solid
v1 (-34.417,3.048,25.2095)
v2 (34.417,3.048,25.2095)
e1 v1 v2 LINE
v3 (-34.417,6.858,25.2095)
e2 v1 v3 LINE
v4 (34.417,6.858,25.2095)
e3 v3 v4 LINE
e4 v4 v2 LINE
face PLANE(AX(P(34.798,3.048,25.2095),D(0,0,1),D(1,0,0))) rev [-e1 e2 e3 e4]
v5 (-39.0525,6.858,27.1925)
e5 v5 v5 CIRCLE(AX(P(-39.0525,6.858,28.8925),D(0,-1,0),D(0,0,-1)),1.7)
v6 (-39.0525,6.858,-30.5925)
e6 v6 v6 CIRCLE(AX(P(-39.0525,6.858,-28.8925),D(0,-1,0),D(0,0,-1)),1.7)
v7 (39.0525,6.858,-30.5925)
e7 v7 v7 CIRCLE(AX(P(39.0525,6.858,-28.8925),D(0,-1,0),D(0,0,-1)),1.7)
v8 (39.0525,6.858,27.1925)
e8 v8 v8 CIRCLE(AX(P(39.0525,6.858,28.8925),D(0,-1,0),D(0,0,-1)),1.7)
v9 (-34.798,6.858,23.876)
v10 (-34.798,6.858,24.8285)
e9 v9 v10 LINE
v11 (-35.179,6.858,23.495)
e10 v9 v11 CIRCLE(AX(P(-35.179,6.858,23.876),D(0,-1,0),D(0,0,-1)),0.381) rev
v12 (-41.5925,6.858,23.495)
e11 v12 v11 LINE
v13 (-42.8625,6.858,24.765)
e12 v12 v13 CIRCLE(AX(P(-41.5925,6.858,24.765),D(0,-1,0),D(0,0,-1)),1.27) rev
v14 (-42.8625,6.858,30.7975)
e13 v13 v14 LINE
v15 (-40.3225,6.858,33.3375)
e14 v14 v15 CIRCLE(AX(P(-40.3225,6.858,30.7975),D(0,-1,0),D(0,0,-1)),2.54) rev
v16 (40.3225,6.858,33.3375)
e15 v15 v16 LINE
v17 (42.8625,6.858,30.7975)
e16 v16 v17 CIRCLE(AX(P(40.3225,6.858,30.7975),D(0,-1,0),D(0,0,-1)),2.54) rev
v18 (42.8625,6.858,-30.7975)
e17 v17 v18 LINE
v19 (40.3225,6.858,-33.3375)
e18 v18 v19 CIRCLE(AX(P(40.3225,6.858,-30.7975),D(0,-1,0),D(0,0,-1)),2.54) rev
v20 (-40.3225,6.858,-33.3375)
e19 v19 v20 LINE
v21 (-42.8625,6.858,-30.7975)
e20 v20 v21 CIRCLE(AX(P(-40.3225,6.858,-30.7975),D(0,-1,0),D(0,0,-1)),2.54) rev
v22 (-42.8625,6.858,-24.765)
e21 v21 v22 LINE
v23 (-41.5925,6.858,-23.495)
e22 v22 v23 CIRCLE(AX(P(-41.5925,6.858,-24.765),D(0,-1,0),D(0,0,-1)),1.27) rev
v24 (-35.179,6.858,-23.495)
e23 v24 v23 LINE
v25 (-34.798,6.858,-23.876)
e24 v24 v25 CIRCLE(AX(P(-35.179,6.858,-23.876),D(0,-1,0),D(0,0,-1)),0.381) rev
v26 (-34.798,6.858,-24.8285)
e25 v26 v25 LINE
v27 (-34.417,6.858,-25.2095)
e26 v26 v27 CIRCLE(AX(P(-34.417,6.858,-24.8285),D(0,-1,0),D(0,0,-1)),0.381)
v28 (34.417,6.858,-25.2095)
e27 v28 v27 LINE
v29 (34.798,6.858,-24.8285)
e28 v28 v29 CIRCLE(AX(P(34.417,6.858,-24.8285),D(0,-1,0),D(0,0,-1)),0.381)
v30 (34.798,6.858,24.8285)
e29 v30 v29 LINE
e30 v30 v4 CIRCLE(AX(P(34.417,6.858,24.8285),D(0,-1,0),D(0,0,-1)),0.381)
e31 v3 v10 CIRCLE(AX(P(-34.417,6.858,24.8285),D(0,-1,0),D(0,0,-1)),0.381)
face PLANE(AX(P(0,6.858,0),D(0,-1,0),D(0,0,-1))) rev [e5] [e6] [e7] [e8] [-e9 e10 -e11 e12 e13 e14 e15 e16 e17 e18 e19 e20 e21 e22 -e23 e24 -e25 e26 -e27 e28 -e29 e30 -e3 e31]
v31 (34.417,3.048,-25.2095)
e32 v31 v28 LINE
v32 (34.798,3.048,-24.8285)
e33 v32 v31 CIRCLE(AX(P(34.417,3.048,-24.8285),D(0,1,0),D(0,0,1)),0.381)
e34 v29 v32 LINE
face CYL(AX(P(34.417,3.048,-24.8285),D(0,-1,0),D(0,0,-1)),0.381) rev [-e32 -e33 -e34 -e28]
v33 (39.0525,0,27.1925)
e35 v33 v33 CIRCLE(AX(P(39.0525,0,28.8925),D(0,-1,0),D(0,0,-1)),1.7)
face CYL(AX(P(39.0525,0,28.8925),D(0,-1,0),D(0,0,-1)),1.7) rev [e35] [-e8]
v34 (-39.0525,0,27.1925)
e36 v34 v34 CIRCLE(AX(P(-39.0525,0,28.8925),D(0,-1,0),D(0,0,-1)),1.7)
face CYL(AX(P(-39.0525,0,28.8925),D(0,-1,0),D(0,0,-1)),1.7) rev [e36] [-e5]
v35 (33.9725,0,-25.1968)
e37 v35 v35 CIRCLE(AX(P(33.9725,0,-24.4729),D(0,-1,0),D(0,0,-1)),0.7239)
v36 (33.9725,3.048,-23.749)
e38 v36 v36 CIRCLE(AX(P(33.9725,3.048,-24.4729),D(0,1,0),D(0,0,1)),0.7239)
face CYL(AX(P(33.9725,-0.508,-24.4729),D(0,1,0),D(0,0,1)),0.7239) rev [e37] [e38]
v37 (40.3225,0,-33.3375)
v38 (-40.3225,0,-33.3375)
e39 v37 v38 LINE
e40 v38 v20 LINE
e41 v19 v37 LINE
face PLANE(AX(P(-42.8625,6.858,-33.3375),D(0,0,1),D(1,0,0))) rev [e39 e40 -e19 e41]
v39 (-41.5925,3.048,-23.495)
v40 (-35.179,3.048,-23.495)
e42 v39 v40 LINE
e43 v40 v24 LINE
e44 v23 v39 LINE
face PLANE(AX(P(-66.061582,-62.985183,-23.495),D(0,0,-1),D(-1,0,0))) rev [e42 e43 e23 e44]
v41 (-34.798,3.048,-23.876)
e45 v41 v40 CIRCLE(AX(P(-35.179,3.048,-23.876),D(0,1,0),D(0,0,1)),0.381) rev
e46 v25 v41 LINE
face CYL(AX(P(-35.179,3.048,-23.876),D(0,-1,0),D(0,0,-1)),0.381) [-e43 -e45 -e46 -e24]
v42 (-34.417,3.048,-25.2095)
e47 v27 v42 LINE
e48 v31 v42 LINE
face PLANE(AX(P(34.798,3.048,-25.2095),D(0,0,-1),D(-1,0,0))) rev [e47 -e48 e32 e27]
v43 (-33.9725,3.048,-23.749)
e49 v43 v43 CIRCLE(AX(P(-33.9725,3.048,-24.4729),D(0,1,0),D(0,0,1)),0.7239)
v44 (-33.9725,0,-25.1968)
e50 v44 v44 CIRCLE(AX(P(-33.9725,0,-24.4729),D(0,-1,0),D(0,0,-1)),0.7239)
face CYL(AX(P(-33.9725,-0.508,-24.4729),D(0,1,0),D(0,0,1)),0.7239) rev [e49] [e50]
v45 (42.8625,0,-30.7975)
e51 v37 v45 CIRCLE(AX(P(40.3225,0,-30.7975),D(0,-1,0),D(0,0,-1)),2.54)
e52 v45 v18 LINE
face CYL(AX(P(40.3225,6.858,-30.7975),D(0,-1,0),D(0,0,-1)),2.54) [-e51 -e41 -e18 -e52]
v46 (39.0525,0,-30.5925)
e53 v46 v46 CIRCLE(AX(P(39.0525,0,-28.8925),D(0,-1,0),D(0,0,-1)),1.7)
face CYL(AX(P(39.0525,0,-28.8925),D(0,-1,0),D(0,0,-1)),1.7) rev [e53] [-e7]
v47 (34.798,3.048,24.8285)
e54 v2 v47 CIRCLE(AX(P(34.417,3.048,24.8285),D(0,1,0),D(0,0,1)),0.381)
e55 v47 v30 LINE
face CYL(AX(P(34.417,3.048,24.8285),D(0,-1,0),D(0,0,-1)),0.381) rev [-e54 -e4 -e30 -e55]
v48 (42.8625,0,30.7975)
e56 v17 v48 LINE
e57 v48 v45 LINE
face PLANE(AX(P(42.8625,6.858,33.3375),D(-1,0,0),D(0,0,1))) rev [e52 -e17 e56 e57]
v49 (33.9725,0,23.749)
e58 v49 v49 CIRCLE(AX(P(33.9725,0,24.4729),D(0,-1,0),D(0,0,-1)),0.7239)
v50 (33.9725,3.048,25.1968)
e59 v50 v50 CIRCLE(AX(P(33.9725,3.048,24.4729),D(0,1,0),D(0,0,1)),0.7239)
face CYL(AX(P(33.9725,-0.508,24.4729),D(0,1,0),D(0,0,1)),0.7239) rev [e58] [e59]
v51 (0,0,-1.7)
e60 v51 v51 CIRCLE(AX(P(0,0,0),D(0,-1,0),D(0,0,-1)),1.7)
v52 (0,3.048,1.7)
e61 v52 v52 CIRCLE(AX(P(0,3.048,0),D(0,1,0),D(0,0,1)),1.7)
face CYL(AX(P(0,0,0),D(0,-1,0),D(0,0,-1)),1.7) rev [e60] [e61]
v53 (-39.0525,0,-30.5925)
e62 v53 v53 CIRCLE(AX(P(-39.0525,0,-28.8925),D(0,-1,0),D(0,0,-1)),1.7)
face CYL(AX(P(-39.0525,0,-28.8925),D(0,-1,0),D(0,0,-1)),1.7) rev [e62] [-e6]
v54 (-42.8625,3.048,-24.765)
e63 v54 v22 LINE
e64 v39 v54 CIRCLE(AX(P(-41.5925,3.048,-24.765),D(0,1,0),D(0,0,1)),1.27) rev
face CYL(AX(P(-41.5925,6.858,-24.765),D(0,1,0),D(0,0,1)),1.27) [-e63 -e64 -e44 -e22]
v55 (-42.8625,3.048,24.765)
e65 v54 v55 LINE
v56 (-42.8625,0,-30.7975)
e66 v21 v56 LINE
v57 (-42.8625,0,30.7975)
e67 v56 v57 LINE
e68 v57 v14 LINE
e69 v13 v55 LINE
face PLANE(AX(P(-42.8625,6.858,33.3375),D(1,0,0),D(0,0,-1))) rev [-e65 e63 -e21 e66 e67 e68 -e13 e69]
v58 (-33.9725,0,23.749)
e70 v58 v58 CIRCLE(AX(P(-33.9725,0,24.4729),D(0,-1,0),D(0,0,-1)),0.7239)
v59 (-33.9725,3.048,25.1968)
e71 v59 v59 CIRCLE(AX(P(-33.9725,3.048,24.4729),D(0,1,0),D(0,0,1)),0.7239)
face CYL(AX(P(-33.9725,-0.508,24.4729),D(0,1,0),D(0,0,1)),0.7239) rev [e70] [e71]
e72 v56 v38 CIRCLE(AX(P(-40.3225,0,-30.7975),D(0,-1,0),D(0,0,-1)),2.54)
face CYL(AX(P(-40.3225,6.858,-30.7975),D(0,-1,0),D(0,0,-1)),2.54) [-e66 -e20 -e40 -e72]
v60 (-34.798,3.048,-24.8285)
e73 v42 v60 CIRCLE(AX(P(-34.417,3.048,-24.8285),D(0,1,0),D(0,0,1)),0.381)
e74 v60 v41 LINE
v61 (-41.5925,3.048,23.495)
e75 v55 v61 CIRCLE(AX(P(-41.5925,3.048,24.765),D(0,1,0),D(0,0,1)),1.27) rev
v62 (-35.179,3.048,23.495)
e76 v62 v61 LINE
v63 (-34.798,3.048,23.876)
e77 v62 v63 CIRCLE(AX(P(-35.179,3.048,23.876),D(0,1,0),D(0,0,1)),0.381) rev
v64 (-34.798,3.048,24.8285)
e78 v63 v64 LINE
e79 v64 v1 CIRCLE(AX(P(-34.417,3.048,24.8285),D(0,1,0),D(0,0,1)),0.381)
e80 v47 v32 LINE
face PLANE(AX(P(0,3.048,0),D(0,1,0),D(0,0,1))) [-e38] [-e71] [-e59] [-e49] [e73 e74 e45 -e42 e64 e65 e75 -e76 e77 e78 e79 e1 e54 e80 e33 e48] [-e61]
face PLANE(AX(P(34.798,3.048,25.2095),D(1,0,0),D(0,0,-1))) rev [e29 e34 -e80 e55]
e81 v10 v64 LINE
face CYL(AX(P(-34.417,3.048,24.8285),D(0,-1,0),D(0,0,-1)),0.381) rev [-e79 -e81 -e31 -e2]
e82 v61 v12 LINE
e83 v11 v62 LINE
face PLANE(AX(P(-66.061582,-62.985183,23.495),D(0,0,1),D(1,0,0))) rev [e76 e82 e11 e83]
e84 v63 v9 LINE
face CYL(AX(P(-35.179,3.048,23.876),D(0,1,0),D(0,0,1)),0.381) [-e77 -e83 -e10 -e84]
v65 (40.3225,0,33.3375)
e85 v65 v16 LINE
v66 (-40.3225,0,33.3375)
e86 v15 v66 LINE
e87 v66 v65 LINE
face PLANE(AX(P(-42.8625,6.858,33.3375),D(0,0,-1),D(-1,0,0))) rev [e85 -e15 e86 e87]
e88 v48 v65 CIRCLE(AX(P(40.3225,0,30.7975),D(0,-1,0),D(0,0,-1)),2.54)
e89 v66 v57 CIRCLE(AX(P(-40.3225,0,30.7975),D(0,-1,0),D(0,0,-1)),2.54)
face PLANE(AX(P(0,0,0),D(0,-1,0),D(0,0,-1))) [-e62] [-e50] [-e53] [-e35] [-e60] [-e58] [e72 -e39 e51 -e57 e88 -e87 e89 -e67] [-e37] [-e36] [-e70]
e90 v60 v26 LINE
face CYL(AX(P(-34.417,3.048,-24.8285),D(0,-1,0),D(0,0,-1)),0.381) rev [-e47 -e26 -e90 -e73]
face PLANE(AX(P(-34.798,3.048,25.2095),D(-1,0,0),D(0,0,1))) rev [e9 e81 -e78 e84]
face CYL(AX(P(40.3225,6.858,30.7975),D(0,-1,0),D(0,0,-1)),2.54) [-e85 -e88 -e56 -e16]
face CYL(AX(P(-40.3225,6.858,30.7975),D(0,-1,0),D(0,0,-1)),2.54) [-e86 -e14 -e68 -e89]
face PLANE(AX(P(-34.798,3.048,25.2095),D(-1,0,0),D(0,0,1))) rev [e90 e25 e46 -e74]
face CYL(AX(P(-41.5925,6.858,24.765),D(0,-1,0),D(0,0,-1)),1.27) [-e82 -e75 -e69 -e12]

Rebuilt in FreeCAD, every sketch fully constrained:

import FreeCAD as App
import Part
import Sketcher

V = App.Vector
Q = App.Units.Quantity


def edges_at(feature, points):
    """Names of the edges that pass closest to the given points."""
    edges = feature.Shape.Edges
    near = lambda p: min(range(len(edges)), key=lambda i: edges[i].distToShape(Part.Vertex(*p))[0])
    return sorted({f"Edge{near(p) + 1}" for p in points})


def add_polygon(sketch, points):
    """Adds a closed chain of lines whose ends are joined by coincident constraints."""
    first, n = sketch.GeometryCount, len(points)
    for a, b in zip(points, points[1:] + points[:1]):
        sketch.addGeometry(Part.LineSegment(App.Vector(*a, 0), App.Vector(*b, 0)), False)
    for i in range(n):
        sketch.addConstraint(Sketcher.Constraint("Coincident", first + i, 2, first + (i + 1) % n, 1))

doc = App.newDocument("Part")
params = doc.addObject("Spreadsheet::Sheet", "Params")
for row, (alias, value) in enumerate([
    ("sketch1_width", "3.375 in"),
    ("sketch1_height", "2.625 in"),
    ("pad1_length", "0.27 in"),
    ("fillet_radius", "0.1 in"),
    ("sketch2_width", "2.74 in"),
    ("sketch2_height", "1.985 in"),
    ("pocket1_length", "0.15 in"),
    ("fillet2_radius", "0.015 in"),
    ("sketch3_diameter", "0.057 in"),
    ("pocket2_length", "0.14 in"),
    ("hole_diameter", "3.4 mm"),
    ("hole_depth", "0.27 in"),
    ("sketch5_height", "1.85 in"),
    ("pocket3_length", "0.15 in"),
    ("fillet3_radius", "0.015 in"),
    ("fillet4_radius", "0.05 in"),
], start=1):
    params.set(f"A{row}", alias)
    params.set(f"B{row}", "=" + value)
    params.setAlias(f"B{row}", alias)

body = doc.addObject("PartDesign::Body", "Body")

sketch1 = body.newObject("Sketcher::SketchObject", "Sketch")
sketch1.AttachmentSupport = (doc.getObject("XZ_Plane"), [""])
sketch1.MapMode = "FlatFace"
add_polygon(sketch1, [(-43, -33), (-43, 33), (43, 33), (43, -33)])
sketch1.addConstraint(Sketcher.Constraint("Vertical", 0))
sketch1.addConstraint(Sketcher.Constraint("Horizontal", 1))
sketch1.addConstraint(Sketcher.Constraint("Vertical", 2))
sketch1.addConstraint(Sketcher.Constraint("Horizontal", 3))
sketch1.addConstraint(Sketcher.Constraint("Symmetric", 0, 2, 2, 2, -1, 1))
sketch1.addConstraint(Sketcher.Constraint("DistanceX", 1, 1, 1, 2, Q("3.375 in")))
sketch1.addConstraint(Sketcher.Constraint("DistanceY", 0, 1, 0, 2, Q("2.625 in")))
sketch1.setExpression("Constraints[9]", "Params.sketch1_width")
sketch1.setExpression("Constraints[10]", "Params.sketch1_height")
pad1 = body.newObject("PartDesign::Pad", "Pad")
pad1.Profile = sketch1
pad1.setExpression("Length", "Params.pad1_length")
pad1.Reversed = True
doc.recompute()

fillet = body.newObject("PartDesign::Fillet", "Fillet")
fillet.Base = (pad1, edges_at(pad1, [
    (42.862, 3.429, 33.337),
    (-42.862, 3.429, 33.337),
    (-42.862, 3.429, -33.337),
    (42.862, 3.429, -33.337),
]))
fillet.setExpression("Radius", "Params.fillet_radius")

sketch2 = body.newObject("Sketcher::SketchObject", "Sketch001")
sketch2.AttachmentSupport = (doc.getObject("XZ_Plane"), [""])
sketch2.MapMode = "FlatFace"
sketch2.AttachmentOffset = App.Placement(V(0, 0, -0.27 * 25.4), App.Rotation())
add_polygon(sketch2, [(-35, -25), (-35, 25), (35, 25), (35, -25)])
sketch2.addConstraint(Sketcher.Constraint("Vertical", 0))
sketch2.addConstraint(Sketcher.Constraint("Horizontal", 1))
sketch2.addConstraint(Sketcher.Constraint("Vertical", 2))
sketch2.addConstraint(Sketcher.Constraint("Horizontal", 3))
sketch2.addConstraint(Sketcher.Constraint("Symmetric", 0, 2, 2, 2, -1, 1))
sketch2.addConstraint(Sketcher.Constraint("DistanceX", 1, 1, 1, 2, Q("2.74 in")))
sketch2.addConstraint(Sketcher.Constraint("DistanceY", 0, 1, 0, 2, Q("1.985 in")))
sketch2.setExpression("Constraints[9]", "Params.sketch2_width")
sketch2.setExpression("Constraints[10]", "Params.sketch2_height")
pocket1 = body.newObject("PartDesign::Pocket", "Pocket")
pocket1.Profile = sketch2
pocket1.setExpression("Length", "Params.pocket1_length")
pocket1.Reversed = True
doc.recompute()

fillet2 = body.newObject("PartDesign::Fillet", "Fillet001")
fillet2.Base = (pocket1, edges_at(pocket1, [
    (-34.798, 4.953, 25.209),
    (-34.798, 4.953, -25.209),
    (34.798, 4.953, -25.209),
    (34.798, 4.953, 25.209),
]))
fillet2.setExpression("Radius", "Params.fillet2_radius")

sketch3 = body.newObject("Sketcher::SketchObject", "Sketch002")
sketch3.AttachmentSupport = (doc.getObject("XZ_Plane"), [""])
sketch3.MapMode = "FlatFace"
sketch3.AttachmentOffset = App.Placement(V(0, 0, -0.12 * 25.4), App.Rotation())
sketch3.addGeometry(Part.Circle(V(-34, -24.5, 0), V(0, 0, 1), 0.7), False)
sketch3.addGeometry(Part.Circle(V(34, -24.5, 0), V(0, 0, 1), 0.7), False)
sketch3.addGeometry(Part.Circle(V(34, 24.5, 0), V(0, 0, 1), 0.7), False)
sketch3.addGeometry(Part.Circle(V(-34, 24.5, 0), V(0, 0, 1), 0.7), False)
sketch3.addConstraint(Sketcher.Constraint("Equal", 0, 1))
sketch3.addConstraint(Sketcher.Constraint("Equal", 1, 2))
sketch3.addConstraint(Sketcher.Constraint("Equal", 2, 3))
sketch3.addConstraint(Sketcher.Constraint("Symmetric", 0, 3, 2, 3, -1, 1))
sketch3.addConstraint(Sketcher.Constraint("Symmetric", 1, 3, 3, 3, -1, 1))
sketch3.addConstraint(Sketcher.Constraint("Symmetric", 0, 3, 1, 3, -2))
sketch3.addConstraint(Sketcher.Constraint("Diameter", 0, Q("0.057 in")))
sketch3.addConstraint(Sketcher.Constraint("DistanceX", 0, 3, 1, 3, Q("2.675 in")))
sketch3.addConstraint(Sketcher.Constraint("DistanceY", 1, 3, 2, 3, Q("1.927 in")))
sketch3.setExpression("Constraints[6]", "Params.sketch3_diameter")
pocket2 = body.newObject("PartDesign::Pocket", "Pocket001")
pocket2.Profile = sketch3
pocket2.setExpression("Length", "Params.pocket2_length")
pocket2.Reversed = True

sketch4 = body.newObject("Sketcher::SketchObject", "Sketch003")
sketch4.AttachmentSupport = (doc.getObject("XZ_Plane"), [""])
sketch4.MapMode = "FlatFace"
sketch4.addGeometry(Part.Circle(V(39.1, -28.9, 0), V(0, 0, 1), 1.7), False)
sketch4.addGeometry(Part.Circle(V(0, 0, 0), V(0, 0, 1), 1.7), False)
sketch4.addGeometry(Part.Circle(V(-39.1, -28.9, 0), V(0, 0, 1), 1.7), False)
sketch4.addGeometry(Part.Circle(V(39.1, 28.9, 0), V(0, 0, 1), 1.7), False)
sketch4.addGeometry(Part.Circle(V(-39.1, 28.9, 0), V(0, 0, 1), 1.7), False)
sketch4.addConstraint(Sketcher.Constraint("Coincident", 1, 3, -1, 1))
sketch4.addConstraint(Sketcher.Constraint("Equal", 0, 1))
sketch4.addConstraint(Sketcher.Constraint("Equal", 1, 2))
sketch4.addConstraint(Sketcher.Constraint("Equal", 2, 3))
sketch4.addConstraint(Sketcher.Constraint("Equal", 3, 4))
sketch4.addConstraint(Sketcher.Constraint("Symmetric", 2, 3, 3, 3, -1, 1))
sketch4.addConstraint(Sketcher.Constraint("Symmetric", 0, 3, 4, 3, -1, 1))
sketch4.addConstraint(Sketcher.Constraint("Symmetric", 0, 3, 2, 3, -2))
sketch4.addConstraint(Sketcher.Constraint("Diameter", 0, Q("3.4 mm")))
sketch4.addConstraint(Sketcher.Constraint("DistanceX", 2, 3, 0, 3, Q("3.075 in")))
sketch4.addConstraint(Sketcher.Constraint("DistanceY", 0, 3, 3, 3, Q("2.275 in")))
doc.recompute()
hole = body.newObject("PartDesign::Hole", "Hole")
hole.Profile = sketch4
hole.ThreadType = "None"
hole.setExpression("Diameter", "Params.hole_diameter")
hole.DepthType = "Dimension"
hole.setExpression("Depth", "Params.hole_depth")
hole.DrillPoint = "Flat"

sketch5 = body.newObject("Sketcher::SketchObject", "Sketch004")
sketch5.AttachmentSupport = (doc.getObject("XZ_Plane"), [""])
sketch5.MapMode = "FlatFace"
sketch5.AttachmentOffset = App.Placement(V(0, 0, -0.27 * 25.4), App.Rotation())
add_polygon(sketch5, [(-66, -23), (-66, 23), (-20, 23), (-20, -23)])
sketch5.addConstraint(Sketcher.Constraint("Vertical", 0))
sketch5.addConstraint(Sketcher.Constraint("Horizontal", 1))
sketch5.addConstraint(Sketcher.Constraint("Vertical", 2))
sketch5.addConstraint(Sketcher.Constraint("Horizontal", 3))
sketch5.addConstraint(Sketcher.Constraint("DistanceY", 0, 1, 0, 2, Q("1.85 in")))
sketch5.addConstraint(Sketcher.Constraint("DistanceY", -1, 1, 0, 2, Q("0.925 in")))
sketch5.addConstraint(Sketcher.Constraint("DistanceX", 1, 1, 1, 2, Q("46.393115 mm")))
sketch5.addConstraint(Sketcher.Constraint("DistanceX", 0, 2, -1, 1, Q("66.061582 mm")))
sketch5.setExpression("Constraints[8]", "Params.sketch5_height")
pocket3 = body.newObject("PartDesign::Pocket", "Pocket002")
pocket3.Profile = sketch5
pocket3.setExpression("Length", "Params.pocket3_length")
pocket3.Reversed = True
doc.recompute()

fillet3 = body.newObject("PartDesign::Fillet", "Fillet002")
fillet3.Base = (pocket3, edges_at(pocket3, [(-34.798, 4.953, -23.495), (-34.798, 4.953, 23.495)]))
fillet3.setExpression("Radius", "Params.fillet3_radius")
doc.recompute()

fillet4 = body.newObject("PartDesign::Fillet", "Fillet003")
fillet4.Base = (fillet3, edges_at(fillet3, [(-42.862, 4.953, -23.495), (-42.862, 4.953, 23.495)]))
fillet4.setExpression("Radius", "Params.fillet4_radius")

doc.recompute()
